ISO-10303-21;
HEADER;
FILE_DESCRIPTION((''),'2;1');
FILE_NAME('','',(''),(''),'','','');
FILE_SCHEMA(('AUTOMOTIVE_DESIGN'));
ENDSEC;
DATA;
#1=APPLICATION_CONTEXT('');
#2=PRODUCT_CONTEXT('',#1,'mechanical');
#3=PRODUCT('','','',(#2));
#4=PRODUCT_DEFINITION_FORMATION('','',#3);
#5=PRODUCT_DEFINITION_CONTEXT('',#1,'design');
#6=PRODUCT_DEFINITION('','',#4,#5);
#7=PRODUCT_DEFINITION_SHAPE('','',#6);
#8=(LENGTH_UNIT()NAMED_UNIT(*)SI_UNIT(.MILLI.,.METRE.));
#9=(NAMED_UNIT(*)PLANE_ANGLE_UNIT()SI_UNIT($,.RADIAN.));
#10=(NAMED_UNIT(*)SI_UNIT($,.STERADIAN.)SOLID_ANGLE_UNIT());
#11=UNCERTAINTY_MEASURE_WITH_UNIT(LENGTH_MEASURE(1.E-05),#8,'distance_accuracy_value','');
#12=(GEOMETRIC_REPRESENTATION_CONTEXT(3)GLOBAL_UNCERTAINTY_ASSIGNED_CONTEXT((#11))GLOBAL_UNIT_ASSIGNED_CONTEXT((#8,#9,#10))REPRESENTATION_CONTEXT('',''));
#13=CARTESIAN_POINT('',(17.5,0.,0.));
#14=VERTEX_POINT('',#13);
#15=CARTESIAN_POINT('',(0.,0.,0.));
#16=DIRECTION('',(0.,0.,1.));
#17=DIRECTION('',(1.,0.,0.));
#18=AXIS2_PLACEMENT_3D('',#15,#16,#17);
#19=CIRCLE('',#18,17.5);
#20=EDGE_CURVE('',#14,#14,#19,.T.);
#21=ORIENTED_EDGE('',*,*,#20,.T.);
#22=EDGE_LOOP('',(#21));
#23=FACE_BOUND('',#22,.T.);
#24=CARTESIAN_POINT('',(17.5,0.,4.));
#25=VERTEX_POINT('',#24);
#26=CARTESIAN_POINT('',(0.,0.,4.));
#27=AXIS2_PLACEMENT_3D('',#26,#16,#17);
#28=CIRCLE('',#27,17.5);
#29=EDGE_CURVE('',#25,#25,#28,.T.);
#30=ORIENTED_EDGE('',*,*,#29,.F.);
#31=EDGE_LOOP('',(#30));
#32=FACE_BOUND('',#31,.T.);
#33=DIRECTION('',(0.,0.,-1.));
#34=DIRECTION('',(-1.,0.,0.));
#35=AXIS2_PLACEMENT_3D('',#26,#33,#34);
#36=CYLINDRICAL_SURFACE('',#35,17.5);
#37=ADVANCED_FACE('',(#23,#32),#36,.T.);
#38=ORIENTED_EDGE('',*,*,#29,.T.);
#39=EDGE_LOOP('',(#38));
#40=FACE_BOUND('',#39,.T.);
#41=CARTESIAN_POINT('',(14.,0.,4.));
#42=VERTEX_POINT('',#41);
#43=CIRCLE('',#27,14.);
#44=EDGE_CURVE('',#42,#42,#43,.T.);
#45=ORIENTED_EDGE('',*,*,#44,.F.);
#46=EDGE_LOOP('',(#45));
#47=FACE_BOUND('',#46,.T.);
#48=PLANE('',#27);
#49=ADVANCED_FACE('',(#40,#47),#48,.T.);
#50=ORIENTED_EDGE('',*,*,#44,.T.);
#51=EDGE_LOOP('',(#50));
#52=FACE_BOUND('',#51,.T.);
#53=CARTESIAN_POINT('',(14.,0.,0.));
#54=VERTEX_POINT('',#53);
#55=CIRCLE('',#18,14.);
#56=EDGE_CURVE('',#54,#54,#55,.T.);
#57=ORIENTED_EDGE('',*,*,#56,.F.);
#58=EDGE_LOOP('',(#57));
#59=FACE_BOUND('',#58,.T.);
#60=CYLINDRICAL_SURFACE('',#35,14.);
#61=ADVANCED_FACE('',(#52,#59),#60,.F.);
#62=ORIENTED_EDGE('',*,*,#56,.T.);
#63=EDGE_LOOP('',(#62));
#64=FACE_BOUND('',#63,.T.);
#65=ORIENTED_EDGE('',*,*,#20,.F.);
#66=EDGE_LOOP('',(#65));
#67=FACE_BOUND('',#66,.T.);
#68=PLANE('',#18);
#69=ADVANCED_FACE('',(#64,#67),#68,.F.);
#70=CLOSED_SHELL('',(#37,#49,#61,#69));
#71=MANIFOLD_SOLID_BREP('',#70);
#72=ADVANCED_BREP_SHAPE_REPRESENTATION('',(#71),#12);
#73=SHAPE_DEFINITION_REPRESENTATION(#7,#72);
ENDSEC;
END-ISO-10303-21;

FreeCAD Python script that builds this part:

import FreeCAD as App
import Part
import Sketcher

doc = App.newDocument("Part")
params = doc.addObject("Spreadsheet::Sheet", "Params")
for row, (alias, value) in enumerate([
    ("sketch1_diameter", "35 mm"),
    ("sketch1_diameter2", "28 mm"),
    ("pad1_length", "4 mm"),
], start=1):
    params.set(f"A{row}", alias)
    params.set(f"B{row}", "=" + value)
    params.setAlias(f"B{row}", alias)

body = doc.addObject("PartDesign::Body", "Body")

sketch1 = doc.addObject("Sketcher::SketchObject", "Sketch")
body.addObject(sketch1)
sketch1.AttachmentSupport = (doc.XY_Plane, [""])
sketch1.MapMode = "FlatFace"
sketch1.addGeometry(Part.Circle(App.Vector(0, 0, 0), App.Vector(0, 0, 1), 18), False)
sketch1.addGeometry(Part.Circle(App.Vector(0, 0, 0), App.Vector(0, 0, 1), 14), False)
sketch1.addConstraint(Sketcher.Constraint("Coincident", 0, 3, -1, 1))
sketch1.addConstraint(Sketcher.Constraint("Coincident", 1, 3, -1, 1))
sketch1.addConstraint(Sketcher.Constraint("Diameter", 0, 35.0))
sketch1.addConstraint(Sketcher.Constraint("Diameter", 1, 28.0))
sketch1.setExpression("Constraints[2]", "Params.sketch1_diameter")
sketch1.setExpression("Constraints[3]", "Params.sketch1_diameter2")
pad1 = doc.addObject("PartDesign::Pad", "Pad")
body.addObject(pad1)
pad1.Profile = sketch1
pad1.setExpression("Length", "Params.pad1_length")

doc.recompute()
